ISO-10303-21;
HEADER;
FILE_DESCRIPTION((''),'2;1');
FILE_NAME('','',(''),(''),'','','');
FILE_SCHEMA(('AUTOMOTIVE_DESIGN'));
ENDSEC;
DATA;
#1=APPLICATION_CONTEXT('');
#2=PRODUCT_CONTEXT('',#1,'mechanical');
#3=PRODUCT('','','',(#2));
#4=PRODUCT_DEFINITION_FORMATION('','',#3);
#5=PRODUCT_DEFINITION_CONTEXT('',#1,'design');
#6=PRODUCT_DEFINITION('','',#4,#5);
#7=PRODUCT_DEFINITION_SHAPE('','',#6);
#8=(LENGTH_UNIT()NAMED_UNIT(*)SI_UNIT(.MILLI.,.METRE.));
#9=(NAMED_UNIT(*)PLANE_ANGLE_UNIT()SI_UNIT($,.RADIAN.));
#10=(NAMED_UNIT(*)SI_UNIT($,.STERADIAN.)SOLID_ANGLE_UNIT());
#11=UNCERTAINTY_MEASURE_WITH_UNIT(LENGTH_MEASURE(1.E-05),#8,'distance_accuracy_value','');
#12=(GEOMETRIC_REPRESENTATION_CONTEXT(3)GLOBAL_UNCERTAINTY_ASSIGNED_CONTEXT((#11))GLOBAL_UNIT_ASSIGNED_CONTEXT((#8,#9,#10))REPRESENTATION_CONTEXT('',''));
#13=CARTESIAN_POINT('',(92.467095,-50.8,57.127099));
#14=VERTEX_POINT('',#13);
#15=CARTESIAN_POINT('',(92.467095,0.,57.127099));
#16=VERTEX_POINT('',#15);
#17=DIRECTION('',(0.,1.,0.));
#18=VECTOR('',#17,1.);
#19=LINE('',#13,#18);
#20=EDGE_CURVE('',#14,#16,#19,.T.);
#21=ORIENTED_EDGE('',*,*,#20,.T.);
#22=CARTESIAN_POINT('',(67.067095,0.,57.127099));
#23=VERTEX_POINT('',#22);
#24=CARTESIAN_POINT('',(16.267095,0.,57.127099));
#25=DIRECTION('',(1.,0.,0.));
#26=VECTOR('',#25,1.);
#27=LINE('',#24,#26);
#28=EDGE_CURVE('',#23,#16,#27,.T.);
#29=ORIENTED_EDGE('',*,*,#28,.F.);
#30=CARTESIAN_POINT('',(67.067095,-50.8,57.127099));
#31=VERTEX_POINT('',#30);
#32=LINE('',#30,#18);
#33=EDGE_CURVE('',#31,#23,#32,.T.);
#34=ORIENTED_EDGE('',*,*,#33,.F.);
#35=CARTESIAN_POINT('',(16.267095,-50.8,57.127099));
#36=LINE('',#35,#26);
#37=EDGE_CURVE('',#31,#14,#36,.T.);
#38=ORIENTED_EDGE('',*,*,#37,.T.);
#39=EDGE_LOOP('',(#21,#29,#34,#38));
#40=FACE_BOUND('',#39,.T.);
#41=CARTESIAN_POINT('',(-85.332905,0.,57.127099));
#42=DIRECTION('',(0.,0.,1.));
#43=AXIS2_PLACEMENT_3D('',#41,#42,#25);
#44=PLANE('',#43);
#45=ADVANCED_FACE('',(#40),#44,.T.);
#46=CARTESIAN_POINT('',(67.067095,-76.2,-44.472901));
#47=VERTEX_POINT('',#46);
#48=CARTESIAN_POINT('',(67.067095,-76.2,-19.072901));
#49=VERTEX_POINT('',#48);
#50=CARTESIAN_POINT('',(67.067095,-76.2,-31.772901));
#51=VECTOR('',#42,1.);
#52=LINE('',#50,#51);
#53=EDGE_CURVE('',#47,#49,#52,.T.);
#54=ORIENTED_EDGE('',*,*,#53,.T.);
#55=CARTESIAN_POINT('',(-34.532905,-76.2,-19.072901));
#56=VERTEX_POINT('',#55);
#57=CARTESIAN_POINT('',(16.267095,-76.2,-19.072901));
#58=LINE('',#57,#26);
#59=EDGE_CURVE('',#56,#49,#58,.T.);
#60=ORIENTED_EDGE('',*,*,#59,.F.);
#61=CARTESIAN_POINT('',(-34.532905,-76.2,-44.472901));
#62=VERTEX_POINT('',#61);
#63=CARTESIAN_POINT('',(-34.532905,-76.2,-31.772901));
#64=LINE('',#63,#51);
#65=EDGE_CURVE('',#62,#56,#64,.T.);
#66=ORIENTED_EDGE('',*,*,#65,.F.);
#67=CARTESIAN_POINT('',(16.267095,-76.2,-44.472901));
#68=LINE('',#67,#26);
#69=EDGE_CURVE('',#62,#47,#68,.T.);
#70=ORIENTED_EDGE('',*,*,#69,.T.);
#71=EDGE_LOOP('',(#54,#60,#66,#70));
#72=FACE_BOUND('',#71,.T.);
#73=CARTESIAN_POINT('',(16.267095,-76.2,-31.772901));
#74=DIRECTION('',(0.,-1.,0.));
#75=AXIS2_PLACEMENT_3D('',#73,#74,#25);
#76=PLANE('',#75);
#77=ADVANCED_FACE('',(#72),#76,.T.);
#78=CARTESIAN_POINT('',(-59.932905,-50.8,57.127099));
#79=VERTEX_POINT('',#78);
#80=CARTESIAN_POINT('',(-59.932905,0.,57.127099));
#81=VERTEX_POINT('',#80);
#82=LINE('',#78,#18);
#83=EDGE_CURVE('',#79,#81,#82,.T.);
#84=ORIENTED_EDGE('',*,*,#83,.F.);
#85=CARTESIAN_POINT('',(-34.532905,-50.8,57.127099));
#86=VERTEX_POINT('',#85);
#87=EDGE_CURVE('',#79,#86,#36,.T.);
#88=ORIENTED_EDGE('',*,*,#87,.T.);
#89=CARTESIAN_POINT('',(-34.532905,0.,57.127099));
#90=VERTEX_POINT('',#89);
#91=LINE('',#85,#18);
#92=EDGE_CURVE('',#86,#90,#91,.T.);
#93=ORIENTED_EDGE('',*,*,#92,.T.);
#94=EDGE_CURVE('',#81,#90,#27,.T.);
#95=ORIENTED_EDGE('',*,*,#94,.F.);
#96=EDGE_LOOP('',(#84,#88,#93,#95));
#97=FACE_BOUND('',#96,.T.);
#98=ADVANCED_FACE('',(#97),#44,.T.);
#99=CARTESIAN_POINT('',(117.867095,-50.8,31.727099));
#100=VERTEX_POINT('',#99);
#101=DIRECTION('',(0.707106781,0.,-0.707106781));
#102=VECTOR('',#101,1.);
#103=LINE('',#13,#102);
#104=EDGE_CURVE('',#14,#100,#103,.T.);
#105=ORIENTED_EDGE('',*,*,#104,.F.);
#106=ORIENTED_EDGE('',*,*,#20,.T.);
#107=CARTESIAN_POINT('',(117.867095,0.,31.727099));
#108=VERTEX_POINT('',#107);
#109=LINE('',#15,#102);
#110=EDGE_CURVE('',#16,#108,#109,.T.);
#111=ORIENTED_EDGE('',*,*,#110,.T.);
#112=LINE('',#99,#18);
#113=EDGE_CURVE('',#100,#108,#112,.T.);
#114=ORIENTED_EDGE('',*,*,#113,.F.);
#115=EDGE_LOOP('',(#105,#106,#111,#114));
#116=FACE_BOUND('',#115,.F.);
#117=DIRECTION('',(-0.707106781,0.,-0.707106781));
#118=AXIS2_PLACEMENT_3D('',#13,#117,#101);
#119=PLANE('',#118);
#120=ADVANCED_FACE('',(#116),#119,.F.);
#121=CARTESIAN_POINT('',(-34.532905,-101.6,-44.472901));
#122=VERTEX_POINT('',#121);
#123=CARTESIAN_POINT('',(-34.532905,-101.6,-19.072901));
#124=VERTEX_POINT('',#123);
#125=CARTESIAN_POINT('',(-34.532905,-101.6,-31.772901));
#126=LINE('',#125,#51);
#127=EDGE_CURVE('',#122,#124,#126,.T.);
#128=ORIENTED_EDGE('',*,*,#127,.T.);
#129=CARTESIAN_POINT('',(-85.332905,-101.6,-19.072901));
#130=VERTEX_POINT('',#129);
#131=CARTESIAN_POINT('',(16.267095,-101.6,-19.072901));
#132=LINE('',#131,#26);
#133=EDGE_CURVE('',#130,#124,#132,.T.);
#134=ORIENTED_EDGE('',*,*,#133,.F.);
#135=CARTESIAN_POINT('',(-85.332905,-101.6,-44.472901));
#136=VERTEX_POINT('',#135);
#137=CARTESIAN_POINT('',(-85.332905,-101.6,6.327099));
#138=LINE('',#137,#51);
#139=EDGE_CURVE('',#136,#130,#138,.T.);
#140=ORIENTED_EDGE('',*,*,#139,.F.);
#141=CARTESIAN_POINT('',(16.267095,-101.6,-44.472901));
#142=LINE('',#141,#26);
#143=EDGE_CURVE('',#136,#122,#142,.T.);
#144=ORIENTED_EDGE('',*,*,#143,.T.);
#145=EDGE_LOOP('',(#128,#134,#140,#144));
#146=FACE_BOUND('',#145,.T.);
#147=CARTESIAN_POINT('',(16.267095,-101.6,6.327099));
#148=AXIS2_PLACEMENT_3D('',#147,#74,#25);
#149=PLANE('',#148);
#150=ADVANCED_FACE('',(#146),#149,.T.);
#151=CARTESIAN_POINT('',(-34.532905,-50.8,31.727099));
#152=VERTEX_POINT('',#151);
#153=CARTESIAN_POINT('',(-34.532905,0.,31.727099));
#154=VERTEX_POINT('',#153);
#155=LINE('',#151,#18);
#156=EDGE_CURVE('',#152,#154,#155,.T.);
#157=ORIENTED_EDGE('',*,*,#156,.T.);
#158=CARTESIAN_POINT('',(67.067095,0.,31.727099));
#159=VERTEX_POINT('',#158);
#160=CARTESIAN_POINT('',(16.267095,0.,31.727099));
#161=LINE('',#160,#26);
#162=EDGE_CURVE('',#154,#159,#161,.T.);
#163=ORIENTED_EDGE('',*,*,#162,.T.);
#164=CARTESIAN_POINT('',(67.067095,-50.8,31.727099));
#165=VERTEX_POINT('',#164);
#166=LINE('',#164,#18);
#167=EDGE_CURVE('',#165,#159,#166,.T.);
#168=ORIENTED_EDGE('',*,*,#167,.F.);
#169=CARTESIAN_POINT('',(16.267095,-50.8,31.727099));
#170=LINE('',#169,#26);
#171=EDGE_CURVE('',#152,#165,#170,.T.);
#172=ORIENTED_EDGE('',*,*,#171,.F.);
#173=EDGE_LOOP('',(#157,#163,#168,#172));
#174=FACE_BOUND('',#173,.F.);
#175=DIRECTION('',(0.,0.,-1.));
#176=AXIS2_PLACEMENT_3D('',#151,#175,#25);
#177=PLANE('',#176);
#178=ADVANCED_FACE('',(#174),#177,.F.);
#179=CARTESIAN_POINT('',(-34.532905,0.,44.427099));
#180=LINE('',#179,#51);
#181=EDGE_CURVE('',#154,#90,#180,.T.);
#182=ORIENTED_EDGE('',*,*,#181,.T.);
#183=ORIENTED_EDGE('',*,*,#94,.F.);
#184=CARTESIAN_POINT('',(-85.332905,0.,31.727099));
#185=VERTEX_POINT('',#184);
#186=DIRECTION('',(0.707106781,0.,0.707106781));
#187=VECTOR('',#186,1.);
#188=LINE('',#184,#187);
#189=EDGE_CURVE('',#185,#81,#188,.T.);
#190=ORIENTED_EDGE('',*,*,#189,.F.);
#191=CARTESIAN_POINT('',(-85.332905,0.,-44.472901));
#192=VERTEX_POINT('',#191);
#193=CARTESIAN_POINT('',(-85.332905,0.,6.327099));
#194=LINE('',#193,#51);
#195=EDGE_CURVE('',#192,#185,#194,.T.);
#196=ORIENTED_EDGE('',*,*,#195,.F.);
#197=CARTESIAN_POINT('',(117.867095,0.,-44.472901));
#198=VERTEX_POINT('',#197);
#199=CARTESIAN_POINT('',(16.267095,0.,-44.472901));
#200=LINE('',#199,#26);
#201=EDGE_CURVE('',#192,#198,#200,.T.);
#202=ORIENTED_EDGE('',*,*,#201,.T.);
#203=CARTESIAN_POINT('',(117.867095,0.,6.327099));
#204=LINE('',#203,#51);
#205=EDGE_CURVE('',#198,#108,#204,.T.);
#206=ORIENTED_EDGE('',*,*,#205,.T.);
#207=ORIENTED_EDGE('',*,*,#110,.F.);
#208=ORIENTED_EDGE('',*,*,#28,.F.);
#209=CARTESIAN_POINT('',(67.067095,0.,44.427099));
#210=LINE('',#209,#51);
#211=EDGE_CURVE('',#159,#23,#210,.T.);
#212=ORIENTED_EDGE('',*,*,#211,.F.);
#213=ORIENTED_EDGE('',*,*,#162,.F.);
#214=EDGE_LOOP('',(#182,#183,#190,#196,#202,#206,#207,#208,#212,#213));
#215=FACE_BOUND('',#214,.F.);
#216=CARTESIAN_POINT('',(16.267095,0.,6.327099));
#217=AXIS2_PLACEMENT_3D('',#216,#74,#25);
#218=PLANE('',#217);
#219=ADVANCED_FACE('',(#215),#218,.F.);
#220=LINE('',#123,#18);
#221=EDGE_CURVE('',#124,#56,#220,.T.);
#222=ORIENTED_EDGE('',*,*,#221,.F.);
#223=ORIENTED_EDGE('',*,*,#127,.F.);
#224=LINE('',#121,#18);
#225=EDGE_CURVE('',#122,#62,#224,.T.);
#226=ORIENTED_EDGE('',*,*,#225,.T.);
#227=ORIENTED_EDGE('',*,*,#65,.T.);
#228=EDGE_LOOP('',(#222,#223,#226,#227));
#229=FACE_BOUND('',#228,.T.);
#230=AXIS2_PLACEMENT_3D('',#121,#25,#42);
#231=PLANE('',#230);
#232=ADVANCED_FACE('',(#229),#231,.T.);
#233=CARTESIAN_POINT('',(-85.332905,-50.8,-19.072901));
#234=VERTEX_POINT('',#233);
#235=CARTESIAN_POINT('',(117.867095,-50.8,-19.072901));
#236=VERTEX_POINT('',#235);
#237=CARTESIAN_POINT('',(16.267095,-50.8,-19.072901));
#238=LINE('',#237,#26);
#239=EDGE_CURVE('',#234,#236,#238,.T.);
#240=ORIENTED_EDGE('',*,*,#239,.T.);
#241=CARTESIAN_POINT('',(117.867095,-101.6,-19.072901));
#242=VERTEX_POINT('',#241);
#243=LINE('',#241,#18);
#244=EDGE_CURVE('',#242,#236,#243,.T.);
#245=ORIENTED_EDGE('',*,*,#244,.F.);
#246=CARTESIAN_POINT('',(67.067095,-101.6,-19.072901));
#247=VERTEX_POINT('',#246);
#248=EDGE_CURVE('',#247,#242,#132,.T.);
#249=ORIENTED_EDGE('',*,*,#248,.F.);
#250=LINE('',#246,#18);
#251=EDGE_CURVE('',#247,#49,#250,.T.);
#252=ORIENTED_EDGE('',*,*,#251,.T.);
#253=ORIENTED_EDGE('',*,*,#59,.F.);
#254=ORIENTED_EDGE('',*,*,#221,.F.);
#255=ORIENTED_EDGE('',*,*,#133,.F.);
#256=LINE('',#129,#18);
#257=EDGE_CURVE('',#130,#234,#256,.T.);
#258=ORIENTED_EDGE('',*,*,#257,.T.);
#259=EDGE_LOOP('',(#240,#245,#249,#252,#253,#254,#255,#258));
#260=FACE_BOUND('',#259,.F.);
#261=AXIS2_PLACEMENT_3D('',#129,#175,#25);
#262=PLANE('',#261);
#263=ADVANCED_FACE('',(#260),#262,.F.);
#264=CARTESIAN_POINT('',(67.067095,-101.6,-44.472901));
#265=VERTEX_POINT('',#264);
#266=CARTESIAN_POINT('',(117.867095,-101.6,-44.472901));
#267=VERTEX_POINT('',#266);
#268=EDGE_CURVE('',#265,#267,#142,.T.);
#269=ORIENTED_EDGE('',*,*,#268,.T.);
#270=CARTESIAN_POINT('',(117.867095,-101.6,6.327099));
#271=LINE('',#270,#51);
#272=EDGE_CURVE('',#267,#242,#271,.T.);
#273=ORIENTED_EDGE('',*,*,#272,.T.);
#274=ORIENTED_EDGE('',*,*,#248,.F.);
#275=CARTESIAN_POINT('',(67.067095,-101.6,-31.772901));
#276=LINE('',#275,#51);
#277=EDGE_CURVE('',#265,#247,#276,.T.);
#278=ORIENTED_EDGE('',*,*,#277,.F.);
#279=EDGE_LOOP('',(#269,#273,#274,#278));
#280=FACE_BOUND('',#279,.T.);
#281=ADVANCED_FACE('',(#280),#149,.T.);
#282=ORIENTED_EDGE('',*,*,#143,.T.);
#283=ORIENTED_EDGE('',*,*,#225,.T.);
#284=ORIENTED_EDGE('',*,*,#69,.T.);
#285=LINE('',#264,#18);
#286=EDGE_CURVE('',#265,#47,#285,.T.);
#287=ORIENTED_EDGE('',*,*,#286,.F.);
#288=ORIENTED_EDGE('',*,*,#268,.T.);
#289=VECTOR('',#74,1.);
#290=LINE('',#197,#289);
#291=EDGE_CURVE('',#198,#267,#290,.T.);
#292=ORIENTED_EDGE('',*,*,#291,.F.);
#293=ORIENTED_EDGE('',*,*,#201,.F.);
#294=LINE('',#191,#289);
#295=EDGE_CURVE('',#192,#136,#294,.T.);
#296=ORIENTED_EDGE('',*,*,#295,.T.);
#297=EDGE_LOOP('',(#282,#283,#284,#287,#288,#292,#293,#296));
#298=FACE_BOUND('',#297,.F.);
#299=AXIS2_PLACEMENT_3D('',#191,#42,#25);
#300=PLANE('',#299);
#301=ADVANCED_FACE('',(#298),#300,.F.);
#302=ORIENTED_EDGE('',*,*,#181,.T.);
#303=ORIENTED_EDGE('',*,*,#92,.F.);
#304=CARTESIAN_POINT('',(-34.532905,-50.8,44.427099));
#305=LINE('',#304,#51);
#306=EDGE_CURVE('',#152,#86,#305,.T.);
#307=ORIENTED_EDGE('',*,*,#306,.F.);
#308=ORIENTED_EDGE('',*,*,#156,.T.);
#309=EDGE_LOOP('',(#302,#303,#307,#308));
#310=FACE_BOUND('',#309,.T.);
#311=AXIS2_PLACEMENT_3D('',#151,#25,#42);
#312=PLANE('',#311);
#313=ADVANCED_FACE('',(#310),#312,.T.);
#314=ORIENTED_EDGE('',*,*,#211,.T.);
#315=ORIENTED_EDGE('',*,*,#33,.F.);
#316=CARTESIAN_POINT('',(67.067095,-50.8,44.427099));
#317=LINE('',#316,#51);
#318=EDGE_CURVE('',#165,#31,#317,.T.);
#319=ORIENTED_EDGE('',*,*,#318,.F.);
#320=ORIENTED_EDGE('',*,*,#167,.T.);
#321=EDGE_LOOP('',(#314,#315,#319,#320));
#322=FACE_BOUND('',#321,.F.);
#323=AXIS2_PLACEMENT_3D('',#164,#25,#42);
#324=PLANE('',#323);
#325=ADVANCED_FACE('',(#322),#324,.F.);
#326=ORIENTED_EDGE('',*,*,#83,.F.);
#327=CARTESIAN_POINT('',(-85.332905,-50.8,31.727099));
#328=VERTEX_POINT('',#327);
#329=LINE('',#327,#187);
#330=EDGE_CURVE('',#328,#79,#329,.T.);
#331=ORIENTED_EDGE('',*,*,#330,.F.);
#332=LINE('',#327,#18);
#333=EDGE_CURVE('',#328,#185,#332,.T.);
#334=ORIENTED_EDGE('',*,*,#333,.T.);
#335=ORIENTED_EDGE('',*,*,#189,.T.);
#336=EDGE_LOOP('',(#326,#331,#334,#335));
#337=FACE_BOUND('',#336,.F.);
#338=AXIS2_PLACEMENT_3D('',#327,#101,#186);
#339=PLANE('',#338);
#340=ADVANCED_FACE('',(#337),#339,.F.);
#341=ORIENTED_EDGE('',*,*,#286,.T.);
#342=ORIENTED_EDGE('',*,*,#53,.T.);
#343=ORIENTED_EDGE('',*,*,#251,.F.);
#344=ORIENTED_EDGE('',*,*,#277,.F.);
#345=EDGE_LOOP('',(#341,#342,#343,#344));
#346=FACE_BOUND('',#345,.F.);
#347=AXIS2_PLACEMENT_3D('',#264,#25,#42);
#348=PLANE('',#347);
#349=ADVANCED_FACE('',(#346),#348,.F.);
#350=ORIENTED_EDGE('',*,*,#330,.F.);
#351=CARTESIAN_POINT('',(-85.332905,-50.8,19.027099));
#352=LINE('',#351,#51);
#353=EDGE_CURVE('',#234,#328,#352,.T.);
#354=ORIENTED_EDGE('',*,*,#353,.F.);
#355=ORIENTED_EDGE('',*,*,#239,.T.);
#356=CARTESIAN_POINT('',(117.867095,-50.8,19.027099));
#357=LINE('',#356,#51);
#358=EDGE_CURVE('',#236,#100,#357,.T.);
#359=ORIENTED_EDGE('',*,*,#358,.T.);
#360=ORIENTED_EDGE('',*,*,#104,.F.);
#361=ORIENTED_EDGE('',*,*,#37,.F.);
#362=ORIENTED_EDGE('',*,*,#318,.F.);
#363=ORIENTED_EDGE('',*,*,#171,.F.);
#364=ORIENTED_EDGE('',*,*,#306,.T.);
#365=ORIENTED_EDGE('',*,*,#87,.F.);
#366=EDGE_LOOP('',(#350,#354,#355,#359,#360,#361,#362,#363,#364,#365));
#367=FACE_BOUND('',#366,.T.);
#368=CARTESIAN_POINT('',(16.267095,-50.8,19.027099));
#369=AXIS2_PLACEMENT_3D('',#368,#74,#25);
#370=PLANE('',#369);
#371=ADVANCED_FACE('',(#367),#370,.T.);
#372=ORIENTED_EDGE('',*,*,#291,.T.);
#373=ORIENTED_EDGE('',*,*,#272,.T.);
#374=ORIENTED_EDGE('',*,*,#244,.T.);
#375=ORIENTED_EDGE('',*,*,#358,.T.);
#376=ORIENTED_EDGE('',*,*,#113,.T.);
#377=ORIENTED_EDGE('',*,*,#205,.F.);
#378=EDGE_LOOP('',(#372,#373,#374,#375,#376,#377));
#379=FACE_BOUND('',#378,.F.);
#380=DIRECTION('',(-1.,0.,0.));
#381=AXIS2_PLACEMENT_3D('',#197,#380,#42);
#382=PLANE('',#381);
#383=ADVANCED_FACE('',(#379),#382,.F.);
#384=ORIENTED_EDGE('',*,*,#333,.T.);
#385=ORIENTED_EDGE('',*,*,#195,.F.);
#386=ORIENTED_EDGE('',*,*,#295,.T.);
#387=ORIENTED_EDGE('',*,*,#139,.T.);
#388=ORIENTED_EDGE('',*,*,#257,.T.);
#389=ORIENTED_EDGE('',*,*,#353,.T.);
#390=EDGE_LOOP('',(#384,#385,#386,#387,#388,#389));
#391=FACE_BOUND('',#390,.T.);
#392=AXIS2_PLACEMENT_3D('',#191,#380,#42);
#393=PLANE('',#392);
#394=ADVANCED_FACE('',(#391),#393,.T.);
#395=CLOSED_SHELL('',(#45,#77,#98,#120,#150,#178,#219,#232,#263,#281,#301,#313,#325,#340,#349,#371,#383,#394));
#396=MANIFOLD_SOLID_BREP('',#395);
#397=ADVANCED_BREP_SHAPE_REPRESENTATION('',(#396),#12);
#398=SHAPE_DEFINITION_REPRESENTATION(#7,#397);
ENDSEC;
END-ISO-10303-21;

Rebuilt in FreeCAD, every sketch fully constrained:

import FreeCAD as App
import Part
import Sketcher
from FreeCAD import Vector
Q = App.Units.Quantity


def add_polygon(sketch, points):
    """Adds a closed chain of lines whose ends are joined by coincident constraints."""
    first, n = sketch.GeometryCount, len(points)
    for a, b in zip(points, points[1:] + points[:1]):
        sketch.addGeometry(Part.LineSegment(App.Vector(*a, 0), App.Vector(*b, 0)), False)
    for i in range(n):
        sketch.addConstraint(Sketcher.Constraint("Coincident", first + i, 2, first + (i + 1) % n, 1))

doc = App.newDocument("Part")
body = doc.addObject("PartDesign::Body", "Body")

sketch1 = body.newObject("Sketcher::SketchObject", "Sketch")
sketch1.AttachmentSupport = (doc.getObject("XZ_Plane"), [""])
sketch1.MapMode = "FlatFace"
add_polygon(sketch1, [(-85, 57), (-85, -44), (118, -44), (118, 57)])
sketch1.addConstraint([
    Sketcher.Constraint("Vertical", 0),
    Sketcher.Constraint("Horizontal", 1),
    Sketcher.Constraint("Vertical", 2),
    Sketcher.Constraint("Horizontal", 3),
    Sketcher.Constraint("DistanceX", 1, 1, 1, 2, Q("8 in")),
    Sketcher.Constraint("DistanceY", 0, 2, 0, 1, Q("4 in")),
    Sketcher.Constraint("DistanceY", 0, 2, -1, 1, 44.472901),
    Sketcher.Constraint("DistanceX", 0, 2, -1, 1, 85.332905),
])
pad1 = body.newObject("PartDesign::Pad", "Pad")
pad1.Profile = sketch1
pad1.Length = Q("4 in")

sketch2 = body.newObject("Sketcher::SketchObject", "Sketch001")
sketch2.AttachmentSupport = (doc.getObject("XZ_Plane"), [""])
sketch2.MapMode = "FlatFace"
sketch2.AttachmentOffset = App.Placement(Vector(0, 0, 4 * 25.4), App.Rotation())
add_polygon(sketch2, [(-85, 57), (-85, -19), (118, -19), (118, 57)])
sketch2.addConstraint([
    Sketcher.Constraint("Vertical", 0),
    Sketcher.Constraint("Horizontal", 1),
    Sketcher.Constraint("Vertical", 2),
    Sketcher.Constraint("Horizontal", 3),
    Sketcher.Constraint("DistanceX", 1, 1, 1, 2, Q("8 in")),
    Sketcher.Constraint("DistanceY", 0, 2, 0, 1, Q("3 in")),
    Sketcher.Constraint("DistanceY", 0, 2, -1, 1, 19.072901),
    Sketcher.Constraint("DistanceX", 0, 2, -1, 1, 85.332905),
])
pocket1 = body.newObject("PartDesign::Pocket", "Pocket")
pocket1.Profile = sketch2
pocket1.Length = Q("2 in")

sketch3 = body.newObject("Sketcher::SketchObject", "Sketch002")
sketch3.AttachmentSupport = (doc.getObject("XZ_Plane"), [""])
sketch3.MapMode = "FlatFace"
sketch3.AttachmentOffset = App.Placement(Vector(0, 0, 4 * 25.4), App.Rotation())
add_polygon(sketch3, [(-35, -19), (-35, -44), (67, -44), (67, -19)])
sketch3.addConstraint([
    Sketcher.Constraint("Vertical", 0),
    Sketcher.Constraint("Horizontal", 1),
    Sketcher.Constraint("Vertical", 2),
    Sketcher.Constraint("Horizontal", 3),
    Sketcher.Constraint("DistanceX", 1, 1, 1, 2, Q("4 in")),
    Sketcher.Constraint("DistanceY", 0, 2, 0, 1, Q("1 in")),
    Sketcher.Constraint("DistanceY", 0, 2, -1, 1, 44.472901),
    Sketcher.Constraint("DistanceX", 0, 2, -1, 1, 34.532905),
])
pocket2 = body.newObject("PartDesign::Pocket", "Pocket001")
pocket2.Profile = sketch3
pocket2.Length = Q("1 in")

sketch4 = body.newObject("Sketcher::SketchObject", "Sketch003")
sketch4.AttachmentSupport = (doc.getObject("XZ_Plane"), [""])
sketch4.MapMode = "FlatFace"
sketch4.AttachmentOffset = App.Placement(Vector(0, 0, 2 * 25.4), App.Rotation())
add_polygon(sketch4, [(-35, 57), (-35, 32), (67, 32), (67, 57)])
sketch4.addConstraint([
    Sketcher.Constraint("Vertical", 0),
    Sketcher.Constraint("Horizontal", 1),
    Sketcher.Constraint("Vertical", 2),
    Sketcher.Constraint("Horizontal", 3),
    Sketcher.Constraint("DistanceX", 1, 1, 1, 2, Q("4 in")),
    Sketcher.Constraint("DistanceY", 0, 2, 0, 1, Q("1 in")),
    Sketcher.Constraint("DistanceY", -1, 1, 0, 2, 31.727099),
    Sketcher.Constraint("DistanceX", 0, 2, -1, 1, 34.532905),
])
pocket3 = body.newObject("PartDesign::Pocket", "Pocket002")
pocket3.Profile = sketch4
pocket3.Length = Q("2 in")

sketch5 = body.newObject("Sketcher::SketchObject", "Sketch004")
sketch5.AttachmentSupport = (doc.getObject("XZ_Plane"), [""])
sketch5.MapMode = "FlatFace"
sketch5.AttachmentOffset = App.Placement(Vector(0, 0, 2 * 25.4), App.Rotation())
add_polygon(sketch5, [(92, 57), (118, 32), (118, 57)])
sketch5.addConstraint([
    Sketcher.Constraint("Vertical", 1),
    Sketcher.Constraint("Horizontal", 2),
    Sketcher.Constraint("Equal", 2, 1),
    Sketcher.Constraint("DistanceX", 2, 2, 2, 1, Q("1 in")),
    Sketcher.Constraint("DistanceY", -1, 1, 0, 2, 31.727099),
    Sketcher.Constraint("DistanceX", -1, 1, 0, 2, 117.867095),
])
pocket4 = body.newObject("PartDesign::Pocket", "Pocket003")
pocket4.Profile = sketch5
pocket4.Length = Q("2 in")

sketch6 = body.newObject("Sketcher::SketchObject", "Sketch005")
sketch6.AttachmentSupport = (doc.getObject("XZ_Plane"), [""])
sketch6.MapMode = "FlatFace"
sketch6.AttachmentOffset = App.Placement(Vector(0, 0, 2 * 25.4), App.Rotation())
add_polygon(sketch6, [(-85, 57), (-85, 32), (-60, 57)])
sketch6.addConstraint([
    Sketcher.Constraint("Vertical", 0),
    Sketcher.Constraint("Horizontal", 2),
    Sketcher.Constraint("Equal", 2, 0),
    Sketcher.Constraint("DistanceX", 2, 2, 2, 1, Q("1 in")),
    Sketcher.Constraint("DistanceY", -1, 1, 0, 2, 31.727099),
    Sketcher.Constraint("DistanceX", 0, 2, -1, 1, 85.332905),
])
pocket5 = body.newObject("PartDesign::Pocket", "Pocket004")
pocket5.Profile = sketch6
pocket5.Length = Q("2 in")

doc.recompute()
